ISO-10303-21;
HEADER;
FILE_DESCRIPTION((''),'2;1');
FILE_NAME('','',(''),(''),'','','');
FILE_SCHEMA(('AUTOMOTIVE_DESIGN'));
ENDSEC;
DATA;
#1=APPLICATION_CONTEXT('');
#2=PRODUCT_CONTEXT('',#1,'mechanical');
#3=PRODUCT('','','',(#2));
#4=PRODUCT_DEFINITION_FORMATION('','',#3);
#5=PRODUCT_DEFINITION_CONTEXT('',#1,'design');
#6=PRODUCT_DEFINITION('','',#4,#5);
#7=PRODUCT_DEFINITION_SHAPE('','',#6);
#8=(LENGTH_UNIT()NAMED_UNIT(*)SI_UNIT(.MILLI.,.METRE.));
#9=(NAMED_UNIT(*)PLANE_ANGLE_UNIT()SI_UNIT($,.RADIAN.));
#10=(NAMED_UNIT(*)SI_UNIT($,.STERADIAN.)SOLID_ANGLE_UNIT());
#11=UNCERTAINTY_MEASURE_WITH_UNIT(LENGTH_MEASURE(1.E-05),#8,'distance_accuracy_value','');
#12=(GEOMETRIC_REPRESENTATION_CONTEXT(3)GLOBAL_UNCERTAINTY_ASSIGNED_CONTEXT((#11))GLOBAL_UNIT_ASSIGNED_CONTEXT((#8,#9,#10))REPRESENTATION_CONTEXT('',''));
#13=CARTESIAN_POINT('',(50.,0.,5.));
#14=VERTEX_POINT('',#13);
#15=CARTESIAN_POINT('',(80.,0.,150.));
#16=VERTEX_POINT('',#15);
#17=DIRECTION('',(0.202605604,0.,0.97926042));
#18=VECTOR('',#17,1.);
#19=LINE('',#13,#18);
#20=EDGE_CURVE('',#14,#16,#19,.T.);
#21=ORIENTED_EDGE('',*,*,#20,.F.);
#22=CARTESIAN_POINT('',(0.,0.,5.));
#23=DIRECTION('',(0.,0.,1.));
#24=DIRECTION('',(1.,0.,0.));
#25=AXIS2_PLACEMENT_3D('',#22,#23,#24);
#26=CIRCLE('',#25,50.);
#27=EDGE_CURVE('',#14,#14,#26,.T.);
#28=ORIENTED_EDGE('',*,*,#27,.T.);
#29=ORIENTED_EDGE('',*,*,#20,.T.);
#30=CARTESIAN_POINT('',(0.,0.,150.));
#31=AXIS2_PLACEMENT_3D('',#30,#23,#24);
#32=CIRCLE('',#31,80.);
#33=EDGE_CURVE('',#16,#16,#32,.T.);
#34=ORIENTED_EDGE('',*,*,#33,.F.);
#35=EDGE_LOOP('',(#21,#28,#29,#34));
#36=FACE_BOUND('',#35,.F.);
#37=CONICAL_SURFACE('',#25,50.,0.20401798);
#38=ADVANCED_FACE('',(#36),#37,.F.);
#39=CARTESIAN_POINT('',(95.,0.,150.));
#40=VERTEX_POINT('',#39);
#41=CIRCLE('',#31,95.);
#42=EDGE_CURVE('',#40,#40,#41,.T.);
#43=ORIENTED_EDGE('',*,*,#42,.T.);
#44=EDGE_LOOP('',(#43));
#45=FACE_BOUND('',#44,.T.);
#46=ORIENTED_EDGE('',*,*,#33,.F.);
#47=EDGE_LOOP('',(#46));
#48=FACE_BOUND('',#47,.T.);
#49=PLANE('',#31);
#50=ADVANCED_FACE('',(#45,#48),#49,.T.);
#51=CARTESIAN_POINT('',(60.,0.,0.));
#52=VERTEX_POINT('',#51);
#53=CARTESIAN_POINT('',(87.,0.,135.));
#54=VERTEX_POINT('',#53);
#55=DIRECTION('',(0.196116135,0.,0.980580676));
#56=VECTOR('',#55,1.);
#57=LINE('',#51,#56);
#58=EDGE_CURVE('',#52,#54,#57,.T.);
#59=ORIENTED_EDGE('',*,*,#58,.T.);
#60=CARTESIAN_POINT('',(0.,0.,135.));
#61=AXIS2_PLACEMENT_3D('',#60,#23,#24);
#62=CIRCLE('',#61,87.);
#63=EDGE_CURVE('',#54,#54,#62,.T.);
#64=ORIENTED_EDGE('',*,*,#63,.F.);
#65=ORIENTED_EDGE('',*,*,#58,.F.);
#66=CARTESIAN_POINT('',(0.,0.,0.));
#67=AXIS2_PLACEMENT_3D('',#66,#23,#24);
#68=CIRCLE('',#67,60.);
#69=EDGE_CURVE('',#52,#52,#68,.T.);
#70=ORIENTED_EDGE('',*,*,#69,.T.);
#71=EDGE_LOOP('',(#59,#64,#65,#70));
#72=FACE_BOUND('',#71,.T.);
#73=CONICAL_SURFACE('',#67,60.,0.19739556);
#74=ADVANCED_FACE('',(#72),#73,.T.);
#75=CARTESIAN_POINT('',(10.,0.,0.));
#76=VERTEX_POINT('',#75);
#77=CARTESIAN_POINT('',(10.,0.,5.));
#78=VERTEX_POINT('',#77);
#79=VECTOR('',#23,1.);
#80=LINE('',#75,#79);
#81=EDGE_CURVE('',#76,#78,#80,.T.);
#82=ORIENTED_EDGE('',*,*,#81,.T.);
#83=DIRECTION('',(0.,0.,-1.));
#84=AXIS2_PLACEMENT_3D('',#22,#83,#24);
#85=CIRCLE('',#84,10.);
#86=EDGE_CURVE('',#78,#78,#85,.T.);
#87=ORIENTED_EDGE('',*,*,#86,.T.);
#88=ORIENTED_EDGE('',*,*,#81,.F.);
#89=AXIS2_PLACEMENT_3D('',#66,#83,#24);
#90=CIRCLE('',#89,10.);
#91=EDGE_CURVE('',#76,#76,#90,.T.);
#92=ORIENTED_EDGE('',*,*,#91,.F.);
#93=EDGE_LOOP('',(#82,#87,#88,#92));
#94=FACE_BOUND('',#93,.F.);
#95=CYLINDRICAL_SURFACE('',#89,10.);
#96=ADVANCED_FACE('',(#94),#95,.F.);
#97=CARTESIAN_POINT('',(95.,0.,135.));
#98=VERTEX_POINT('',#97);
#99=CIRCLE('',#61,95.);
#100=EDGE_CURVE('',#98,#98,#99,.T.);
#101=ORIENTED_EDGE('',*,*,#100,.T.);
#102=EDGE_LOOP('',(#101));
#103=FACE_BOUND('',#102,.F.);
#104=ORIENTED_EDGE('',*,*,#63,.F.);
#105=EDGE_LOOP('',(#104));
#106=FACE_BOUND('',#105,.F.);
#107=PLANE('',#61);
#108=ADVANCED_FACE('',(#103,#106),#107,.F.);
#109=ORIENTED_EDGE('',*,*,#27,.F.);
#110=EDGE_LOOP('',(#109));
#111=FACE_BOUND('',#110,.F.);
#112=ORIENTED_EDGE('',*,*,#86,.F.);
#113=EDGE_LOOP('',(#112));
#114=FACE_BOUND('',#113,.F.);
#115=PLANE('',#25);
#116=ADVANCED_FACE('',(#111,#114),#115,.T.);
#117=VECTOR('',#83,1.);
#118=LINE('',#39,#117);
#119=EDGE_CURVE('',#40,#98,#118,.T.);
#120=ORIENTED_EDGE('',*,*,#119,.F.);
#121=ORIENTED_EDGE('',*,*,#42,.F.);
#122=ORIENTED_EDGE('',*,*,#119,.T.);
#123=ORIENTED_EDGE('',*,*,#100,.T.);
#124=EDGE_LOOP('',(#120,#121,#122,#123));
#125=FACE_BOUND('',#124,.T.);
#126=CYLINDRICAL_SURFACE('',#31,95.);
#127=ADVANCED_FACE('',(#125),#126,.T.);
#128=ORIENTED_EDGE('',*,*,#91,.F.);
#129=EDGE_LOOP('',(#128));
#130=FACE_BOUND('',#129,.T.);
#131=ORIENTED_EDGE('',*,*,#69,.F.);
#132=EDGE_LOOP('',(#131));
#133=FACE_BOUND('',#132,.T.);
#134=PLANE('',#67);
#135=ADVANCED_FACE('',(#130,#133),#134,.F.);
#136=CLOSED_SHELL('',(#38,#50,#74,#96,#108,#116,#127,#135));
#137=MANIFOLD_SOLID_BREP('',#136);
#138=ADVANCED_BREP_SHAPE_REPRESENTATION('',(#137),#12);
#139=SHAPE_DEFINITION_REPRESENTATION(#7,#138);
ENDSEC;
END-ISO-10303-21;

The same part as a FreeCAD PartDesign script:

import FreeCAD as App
import Part
import Sketcher
from FreeCAD import Vector


def add_polygon(sketch, points):
    """Adds a closed chain of lines whose ends are joined by coincident constraints."""
    first, n = sketch.GeometryCount, len(points)
    for a, b in zip(points, points[1:] + points[:1]):
        sketch.addGeometry(Part.LineSegment(App.Vector(*a, 0), App.Vector(*b, 0)), False)
    for i in range(n):
        sketch.addConstraint(Sketcher.Constraint("Coincident", first + i, 2, first + (i + 1) % n, 1))

doc = App.newDocument("Part")
body = doc.addObject("PartDesign::Body", "Body")

# Sketch on XZ plane
sketch1 = doc.addObject("Sketcher::SketchObject", "Sketch")
body.addObject(sketch1)
sketch1.AttachmentSupport = (doc.XZ_Plane, [""])
sketch1.MapMode = "FlatFace"
add_polygon(sketch1, [(0, 5), (50, 5), (80, 150), (0, 150)])  # lines 0-3
sketch1.addConstraint(Sketcher.Constraint("Horizontal", 0))
sketch1.addConstraint(Sketcher.Constraint("Horizontal", 2))
sketch1.addConstraint(Sketcher.Constraint("Vertical", 3))
sketch1.addConstraint(Sketcher.Constraint("PointOnObject", 2, 2, -2))
sketch1.addConstraint(Sketcher.Constraint("DistanceX", 0, 1, 0, 2, 50.0))
sketch1.addConstraint(Sketcher.Constraint("DistanceX", 2, 2, 2, 1, 80.0))
sketch1.addConstraint(Sketcher.Constraint("DistanceY", 3, 2, 3, 1, 145.0))
sketch1.addConstraint(Sketcher.Constraint("DistanceY", -1, 1, 0, 2, 5.0))
revolution = doc.addObject("PartDesign::Revolution", "Revolution")
body.addObject(revolution)
revolution.Profile = sketch1
revolution.ReferenceAxis = (sketch1, ["V_Axis"])
revolution.Angle = 360
body2 = doc.addObject("PartDesign::Body", "Body001")

# Sketch on XZ plane
sketch2 = doc.addObject("Sketcher::SketchObject", "Sketch001")
body2.addObject(sketch2)
sketch2.AttachmentSupport = (doc.getObject("XZ_Plane001"), [""])
sketch2.MapMode = "FlatFace"
add_polygon(sketch2, [(0, 0), (60, 0), (90, 150), (0, 150)])  # lines 0-3
sketch2.addConstraint(Sketcher.Constraint("Horizontal", 0))
sketch2.addConstraint(Sketcher.Constraint("Horizontal", 2))
sketch2.addConstraint(Sketcher.Constraint("Vertical", 3))
sketch2.addConstraint(Sketcher.Constraint("Coincident", 3, 2, -1, 1))
sketch2.addConstraint(Sketcher.Constraint("DistanceX", 0, 1, 0, 2, 60.0))
sketch2.addConstraint(Sketcher.Constraint("DistanceX", 2, 2, 2, 1, 90.0))
sketch2.addConstraint(Sketcher.Constraint("DistanceY", 3, 2, 3, 1, 150.0))
revolution2 = doc.addObject("PartDesign::Revolution", "Revolution001")
body2.addObject(revolution2)
revolution2.Profile = sketch2
revolution2.ReferenceAxis = (sketch2, ["V_Axis"])
revolution2.Angle = 360
doc.recompute()

boolean = doc.addObject("PartDesign::Boolean", "Boolean")
body2.addObject(boolean)
boolean.Type = "Cut"
boolean.addObjects([body])

# Sketch on XY plane
sketch3 = doc.addObject("Sketcher::SketchObject", "Sketch002")
body2.addObject(sketch3)
sketch3.AttachmentSupport = (doc.getObject("XY_Plane001"), [""])
sketch3.MapMode = "FlatFace"
sketch3.addGeometry(Part.Circle(Vector(0, 0, 0), Vector(0, 0, 1), 10), False)
sketch3.addConstraint(Sketcher.Constraint("Coincident", 0, 3, -1, 1))
sketch3.addConstraint(Sketcher.Constraint("Diameter", 0, 20.0))
pocket1 = doc.addObject("PartDesign::Pocket", "Pocket")
body2.addObject(pocket1)
pocket1.Profile = sketch3
pocket1.Length = 5
pocket1.Reversed = True
body3 = doc.addObject("PartDesign::Body", "Body002")

# Sketch on XY plane
sketch4 = doc.addObject("Sketcher::SketchObject", "Sketch003")
body3.addObject(sketch4)
sketch4.AttachmentSupport = (doc.getObject("XY_Plane002"), [""])
sketch4.MapMode = "FlatFace"
sketch4.AttachmentOffset = App.Placement(Vector(0, 0, 150), App.Rotation())
sketch4.addGeometry(Part.Circle(Vector(0, 0, 0), Vector(0, 0, 1), 95), False)
sketch4.addGeometry(Part.Circle(Vector(0, 0, 0), Vector(0, 0, 1), 82.96172), False)
sketch4.addConstraint(Sketcher.Constraint("Coincident", 0, 3, -1, 1))
sketch4.addConstraint(Sketcher.Constraint("Coincident", 1, 3, -1, 1))
sketch4.addConstraint(Sketcher.Constraint("Diameter", 0, 190.0))
sketch4.addConstraint(Sketcher.Constraint("Diameter", 1, 165.92344))
pad1 = doc.addObject("PartDesign::Pad", "Pad")
body3.addObject(pad1)
pad1.Profile = sketch4
pad1.Length = 15
pad1.Reversed = True
doc.recompute()

boolean2 = doc.addObject("PartDesign::Boolean", "Boolean001")
body3.addObject(boolean2)
boolean2.Type = "Fuse"
boolean2.addObjects([body2])

doc.recompute()
